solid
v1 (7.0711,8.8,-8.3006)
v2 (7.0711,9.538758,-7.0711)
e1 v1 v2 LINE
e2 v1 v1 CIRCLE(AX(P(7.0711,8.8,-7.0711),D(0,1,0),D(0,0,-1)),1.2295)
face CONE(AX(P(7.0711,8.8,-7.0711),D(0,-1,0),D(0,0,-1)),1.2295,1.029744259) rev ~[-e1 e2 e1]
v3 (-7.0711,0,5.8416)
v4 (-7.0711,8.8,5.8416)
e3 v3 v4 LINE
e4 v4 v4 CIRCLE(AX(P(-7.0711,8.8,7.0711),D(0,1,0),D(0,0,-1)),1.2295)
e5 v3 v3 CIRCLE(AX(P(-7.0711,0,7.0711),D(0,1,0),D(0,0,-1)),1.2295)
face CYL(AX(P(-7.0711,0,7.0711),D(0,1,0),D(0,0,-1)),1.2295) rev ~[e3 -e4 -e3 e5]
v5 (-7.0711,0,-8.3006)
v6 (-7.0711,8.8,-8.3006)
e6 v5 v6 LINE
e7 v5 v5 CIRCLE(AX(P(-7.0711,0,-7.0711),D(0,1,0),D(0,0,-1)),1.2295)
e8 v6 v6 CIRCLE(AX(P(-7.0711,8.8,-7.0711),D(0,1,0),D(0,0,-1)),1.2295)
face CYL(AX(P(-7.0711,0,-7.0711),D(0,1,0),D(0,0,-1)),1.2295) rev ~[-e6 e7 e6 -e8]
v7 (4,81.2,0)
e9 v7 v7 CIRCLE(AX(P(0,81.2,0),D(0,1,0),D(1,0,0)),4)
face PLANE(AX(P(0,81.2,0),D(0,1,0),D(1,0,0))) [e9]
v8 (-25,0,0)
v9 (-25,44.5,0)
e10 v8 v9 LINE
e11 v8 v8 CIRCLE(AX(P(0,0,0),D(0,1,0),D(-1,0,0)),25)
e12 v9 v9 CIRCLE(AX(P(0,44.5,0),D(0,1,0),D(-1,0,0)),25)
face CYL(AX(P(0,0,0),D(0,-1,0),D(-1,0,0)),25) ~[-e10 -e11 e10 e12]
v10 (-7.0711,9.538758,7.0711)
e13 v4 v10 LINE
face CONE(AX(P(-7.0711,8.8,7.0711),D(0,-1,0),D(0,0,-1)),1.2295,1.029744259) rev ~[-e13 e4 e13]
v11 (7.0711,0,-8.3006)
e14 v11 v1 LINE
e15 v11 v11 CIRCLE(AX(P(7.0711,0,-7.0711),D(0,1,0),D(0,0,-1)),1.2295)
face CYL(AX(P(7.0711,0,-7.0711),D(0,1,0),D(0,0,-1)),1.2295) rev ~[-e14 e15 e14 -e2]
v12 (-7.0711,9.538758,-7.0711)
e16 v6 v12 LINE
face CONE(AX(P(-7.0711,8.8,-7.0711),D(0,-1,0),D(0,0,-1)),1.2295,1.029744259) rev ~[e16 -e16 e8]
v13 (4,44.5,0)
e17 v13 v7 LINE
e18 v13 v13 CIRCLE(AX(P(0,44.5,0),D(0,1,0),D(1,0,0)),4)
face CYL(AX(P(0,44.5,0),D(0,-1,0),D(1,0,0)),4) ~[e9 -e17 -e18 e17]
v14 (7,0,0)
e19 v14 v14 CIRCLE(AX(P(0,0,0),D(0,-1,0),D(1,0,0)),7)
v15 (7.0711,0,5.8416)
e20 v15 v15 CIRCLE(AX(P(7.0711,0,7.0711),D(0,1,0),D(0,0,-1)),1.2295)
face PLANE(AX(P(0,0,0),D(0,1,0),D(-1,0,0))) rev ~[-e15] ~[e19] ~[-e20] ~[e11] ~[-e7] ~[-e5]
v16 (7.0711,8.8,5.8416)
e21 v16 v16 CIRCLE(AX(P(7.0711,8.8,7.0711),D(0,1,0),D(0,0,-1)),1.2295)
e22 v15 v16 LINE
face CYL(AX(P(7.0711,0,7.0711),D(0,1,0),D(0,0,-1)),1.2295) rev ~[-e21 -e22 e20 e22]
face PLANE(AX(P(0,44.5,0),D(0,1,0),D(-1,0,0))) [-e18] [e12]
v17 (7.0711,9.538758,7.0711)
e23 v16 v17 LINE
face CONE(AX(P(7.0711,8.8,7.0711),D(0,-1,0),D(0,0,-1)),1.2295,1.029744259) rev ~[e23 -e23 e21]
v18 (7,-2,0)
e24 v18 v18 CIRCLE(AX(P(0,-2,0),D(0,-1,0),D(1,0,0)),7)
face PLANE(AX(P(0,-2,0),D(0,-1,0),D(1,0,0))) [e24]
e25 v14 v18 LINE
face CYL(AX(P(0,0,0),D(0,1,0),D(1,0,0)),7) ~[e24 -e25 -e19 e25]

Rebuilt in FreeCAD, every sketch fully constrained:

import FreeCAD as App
import Part
import Sketcher

V = App.Vector
Q = App.Units.Quantity

doc = App.newDocument("Part")
body = doc.addObject("PartDesign::Body", "Body")

# Sketch on XZ plane
sketch1 = body.newObject("Sketcher::SketchObject", "Sketch")
sketch1.AttachmentSupport = (doc.getObject("XZ_Plane"), [""])
sketch1.MapMode = "FlatFace"
sketch1.addGeometry(Part.Circle(V(0, 0, 0), V(0, 0, 1), 25), False)
sketch1.addConstraint([
    Sketcher.Constraint("Coincident", 0, 3, -1, 1),
    Sketcher.Constraint("Diameter", 0, Q("50 mm")),
])
pad1 = body.newObject("PartDesign::Pad", "Pad")
pad1.Profile = sketch1
pad1.Length = 44.5
pad1.Reversed = True

# Sketch on XZ plane
sketch2 = body.newObject("Sketcher::SketchObject", "Sketch001")
sketch2.AttachmentSupport = (doc.getObject("XZ_Plane"), [""])
sketch2.MapMode = "FlatFace"
sketch2.AttachmentOffset = App.Placement(V(0, 0, -44.5), App.Rotation())
sketch2.addGeometry(Part.Circle(V(0, 0, 0), V(0, 0, 1), 4), False)
sketch2.addConstraint([
    Sketcher.Constraint("Coincident", 0, 3, -1, 1),
    Sketcher.Constraint("Diameter", 0, Q("8 mm")),
])
pad2 = body.newObject("PartDesign::Pad", "Pad001")
pad2.Profile = sketch2
pad2.Length = 36.7
pad2.Reversed = True

# Sketch on XZ plane
sketch3 = body.newObject("Sketcher::SketchObject", "Sketch002")
sketch3.AttachmentSupport = (doc.getObject("XZ_Plane"), [""])
sketch3.MapMode = "FlatFace"
sketch3.addGeometry([
    Part.Circle(V(7.0711, -7.0711, 0), V(0, 0, 1), 1.2295),
    Part.Circle(V(7.0711, 7.0711, 0), V(0, 0, 1), 1.2295),
    Part.Circle(V(-7.0711, 7.0711, 0), V(0, 0, 1), 1.2295),
    Part.Circle(V(-7.0711, -7.0711, 0), V(0, 0, 1), 1.2295),
], False)
sketch3.addConstraint([
    Sketcher.Constraint("Equal", 0, 1),
    Sketcher.Constraint("Equal", 1, 2),
    Sketcher.Constraint("Equal", 2, 3),
    Sketcher.Constraint("Symmetric", 0, 3, 2, 3, -1, 1),
    Sketcher.Constraint("Symmetric", 1, 3, 3, 3, -1, 1),
    Sketcher.Constraint("Symmetric", 1, 3, 2, 3, -2),
    Sketcher.Constraint("Diameter", 0, Q("2.459 mm")),
    Sketcher.Constraint("DistanceX", -1, 1, 0, 3, Q("7.071 mm")),
    Sketcher.Constraint("DistanceY", 0, 3, -1, 1, Q("7.071 mm")),
])
doc.recompute()
hole = body.newObject("PartDesign::Hole", "Hole")
hole.Profile = sketch3
hole.ThreadType = "None"
hole.Diameter = 2.459
hole.DepthType = "Dimension"
hole.Depth = 8.8
hole.DrillPoint = "Angled"
hole.DrillPointAngle = 118

# Sketch on XZ plane
sketch4 = body.newObject("Sketcher::SketchObject", "Sketch003")
sketch4.AttachmentSupport = (doc.getObject("XZ_Plane"), [""])
sketch4.MapMode = "FlatFace"
sketch4.addGeometry(Part.Circle(V(0, 0, 0), V(0, 0, 1), 7), False)
sketch4.addConstraint([
    Sketcher.Constraint("Coincident", 0, 3, -1, 1),
    Sketcher.Constraint("Diameter", 0, Q("14 mm")),
])
pad3 = body.newObject("PartDesign::Pad", "Pad002")
pad3.Profile = sketch4
pad3.Length = 2

doc.recompute()
